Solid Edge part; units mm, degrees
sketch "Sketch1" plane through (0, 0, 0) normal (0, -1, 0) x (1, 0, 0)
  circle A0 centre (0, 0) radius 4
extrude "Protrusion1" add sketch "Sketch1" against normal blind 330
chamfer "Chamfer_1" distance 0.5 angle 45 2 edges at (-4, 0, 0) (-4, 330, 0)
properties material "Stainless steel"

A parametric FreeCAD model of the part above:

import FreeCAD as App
import Part
import Sketcher
from FreeCAD import Vector


def edges_at(feature, points):
    """Names of the edges that pass closest to the given points."""
    edges = feature.Shape.Edges
    near = lambda p: min(range(len(edges)), key=lambda i: edges[i].distToShape(Part.Vertex(*p))[0])
    return sorted({f"Edge{near(p) + 1}" for p in points})

doc = App.newDocument("Part")
params = doc.addObject("Spreadsheet::Sheet", "Params")
for row, (alias, value) in enumerate([
    ("sketch1_diameter", "8 mm"),
    ("pad1_length", "330 mm"),
    ("chamfer_size", "0.5 mm"),
], start=1):
    params.set(f"A{row}", alias)
    params.set(f"B{row}", "=" + value)
    params.setAlias(f"B{row}", alias)

body = doc.addObject("PartDesign::Body", "Body")

sketch1 = body.newObject("Sketcher::SketchObject", "Sketch")
sketch1.AttachmentSupport = (doc.getObject("XZ_Plane"), [""])
sketch1.MapMode = "FlatFace"
sketch1.addGeometry(Part.Circle(Vector(0, 0, 0), Vector(0, 0, 1), 4), False)
sketch1.addConstraint(Sketcher.Constraint("Coincident", 0, 3, -1, 1))
sketch1.addConstraint(Sketcher.Constraint("Diameter", 0, 8.0))
sketch1.setExpression("Constraints[1]", "Params.sketch1_diameter")
pad1 = body.newObject("PartDesign::Pad", "Pad")
pad1.Profile = sketch1
pad1.setExpression("Length", "Params.pad1_length")
pad1.Reversed = True
doc.recompute()

chamfer = body.newObject("PartDesign::Chamfer", "Chamfer")
chamfer.Base = (pad1, edges_at(pad1, [(-4, 0, 0), (-4, 330, 0)]))
chamfer.setExpression("Size", "Params.chamfer_size")

doc.recompute()
